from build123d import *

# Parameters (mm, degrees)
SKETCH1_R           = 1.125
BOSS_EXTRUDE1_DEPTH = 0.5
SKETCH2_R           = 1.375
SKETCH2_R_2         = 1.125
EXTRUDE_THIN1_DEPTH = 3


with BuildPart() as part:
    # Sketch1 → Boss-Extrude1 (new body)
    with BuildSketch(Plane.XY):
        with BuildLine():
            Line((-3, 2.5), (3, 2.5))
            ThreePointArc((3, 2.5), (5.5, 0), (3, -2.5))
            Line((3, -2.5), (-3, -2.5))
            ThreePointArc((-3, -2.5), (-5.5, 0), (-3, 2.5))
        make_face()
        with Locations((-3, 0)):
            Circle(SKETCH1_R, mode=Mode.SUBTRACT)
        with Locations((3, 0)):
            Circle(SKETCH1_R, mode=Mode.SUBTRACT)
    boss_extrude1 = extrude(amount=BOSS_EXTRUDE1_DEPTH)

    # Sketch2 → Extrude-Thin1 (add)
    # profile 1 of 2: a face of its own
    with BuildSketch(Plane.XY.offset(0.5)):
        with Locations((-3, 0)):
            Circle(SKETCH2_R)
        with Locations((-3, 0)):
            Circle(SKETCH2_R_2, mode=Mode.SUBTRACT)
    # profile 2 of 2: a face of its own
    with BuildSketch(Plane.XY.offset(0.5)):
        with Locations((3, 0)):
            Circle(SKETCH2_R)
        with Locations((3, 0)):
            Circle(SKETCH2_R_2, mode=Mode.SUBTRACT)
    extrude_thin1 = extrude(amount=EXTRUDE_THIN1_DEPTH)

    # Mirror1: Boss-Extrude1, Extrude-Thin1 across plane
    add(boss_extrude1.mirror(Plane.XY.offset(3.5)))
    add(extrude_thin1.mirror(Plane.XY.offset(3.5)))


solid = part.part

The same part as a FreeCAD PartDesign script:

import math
import FreeCAD as App
import Part
import Sketcher

V = App.Vector

doc = App.newDocument("Part")
body = doc.addObject("PartDesign::Body", "Body")

sketch1 = body.newObject("Sketcher::SketchObject", "Sketch")
sketch1.AttachmentSupport = (doc.getObject("XY_Plane"), [""])
sketch1.MapMode = "FlatFace"
sketch1.addGeometry([
    Part.LineSegment(V(3, 2.5, 0), V(-3, 2.5, 0)),
    Part.ArcOfCircle(Part.Circle(V(-3, 0, 0), V(0, 0, 1), 2.5), math.radians(90), math.radians(270)),
    Part.LineSegment(V(-3, -2.5, 0), V(3, -2.5, 0)),
    Part.ArcOfCircle(Part.Circle(V(3, 0, 0), V(0, 0, 1), 2.5), math.radians(-90), math.radians(90)),
    Part.Circle(V(3, 0, 0), V(0, 0, 1), 1.125),
    Part.Circle(V(-3, 0, 0), V(0, 0, 1), 1.125),
], False)
sketch1.addConstraint([
    Sketcher.Constraint("Tangent", 0, 2, 1, 1),
    Sketcher.Constraint("Tangent", 1, 2, 2, 1),
    Sketcher.Constraint("Tangent", 2, 2, 3, 1),
    Sketcher.Constraint("Tangent", 3, 2, 0, 1),
    Sketcher.Constraint("Horizontal", 0),
    Sketcher.Constraint("Horizontal", 2),
    Sketcher.Constraint("Coincident", 4, 3, 3, 3),
    Sketcher.Constraint("Coincident", 5, 3, 1, 3),
    Sketcher.Constraint("Equal", 4, 5),
    Sketcher.Constraint("Symmetric", 1, 3, 3, 3, -1, 1),
    Sketcher.Constraint("Radius", 1, 2.5),
    Sketcher.Constraint("Diameter", 4, 2.25),
    Sketcher.Constraint("DistanceX", 0, 2, 0, 1, 6.0),
])
pad1 = body.newObject("PartDesign::Pad", "Pad")
pad1.Profile = sketch1
pad1.Length = 0.5

sketch2 = body.newObject("Sketcher::SketchObject", "Sketch001")
sketch2.AttachmentSupport = (doc.getObject("XY_Plane"), [""])
sketch2.MapMode = "FlatFace"
sketch2.AttachmentOffset = App.Placement(V(0, 0, 0.5), App.Rotation())
sketch2.addGeometry([
    Part.Circle(V(-3, 0, 0), V(0, 0, 1), 1.375),
    Part.Circle(V(-3, 0, 0), V(0, 0, 1), 1.125),
    Part.Circle(V(3, 0, 0), V(0, 0, 1), 1.375),
    Part.Circle(V(3, 0, 0), V(0, 0, 1), 1.125),
], False)
sketch2.addConstraint([
    Sketcher.Constraint("Coincident", 1, 3, 0, 3),
    Sketcher.Constraint("Coincident", 3, 3, 2, 3),
    Sketcher.Constraint("Equal", 0, 2),
    Sketcher.Constraint("Equal", 1, 3),
    Sketcher.Constraint("Symmetric", 0, 3, 2, 3, -1, 1),
    Sketcher.Constraint("PointOnObject", 0, 3, -1),
    Sketcher.Constraint("Diameter", 0, 2.75),
    Sketcher.Constraint("Diameter", 1, 2.25),
    Sketcher.Constraint("DistanceX", 0, 3, -1, 1, 3.0),
])
pad2 = body.newObject("PartDesign::Pad", "Pad001")
pad2.Profile = sketch2
pad2.Length = 3
doc.recompute()

datumplane = body.newObject("PartDesign::Plane", "DatumPlane")
datumplane.AttachmentSupport = (doc.getObject("XY_Plane"), [""])
datumplane.MapMode = "FlatFace"
datumplane.AttachmentOffset = App.Placement(V(0, 0, 3.5), App.Rotation())
mirrored = body.newObject("PartDesign::Mirrored", "Mirrored")
mirrored.Originals = [pad1, pad2]
mirrored.MirrorPlane = (datumplane, [""])
body.Tip = mirrored

doc.recompute()
